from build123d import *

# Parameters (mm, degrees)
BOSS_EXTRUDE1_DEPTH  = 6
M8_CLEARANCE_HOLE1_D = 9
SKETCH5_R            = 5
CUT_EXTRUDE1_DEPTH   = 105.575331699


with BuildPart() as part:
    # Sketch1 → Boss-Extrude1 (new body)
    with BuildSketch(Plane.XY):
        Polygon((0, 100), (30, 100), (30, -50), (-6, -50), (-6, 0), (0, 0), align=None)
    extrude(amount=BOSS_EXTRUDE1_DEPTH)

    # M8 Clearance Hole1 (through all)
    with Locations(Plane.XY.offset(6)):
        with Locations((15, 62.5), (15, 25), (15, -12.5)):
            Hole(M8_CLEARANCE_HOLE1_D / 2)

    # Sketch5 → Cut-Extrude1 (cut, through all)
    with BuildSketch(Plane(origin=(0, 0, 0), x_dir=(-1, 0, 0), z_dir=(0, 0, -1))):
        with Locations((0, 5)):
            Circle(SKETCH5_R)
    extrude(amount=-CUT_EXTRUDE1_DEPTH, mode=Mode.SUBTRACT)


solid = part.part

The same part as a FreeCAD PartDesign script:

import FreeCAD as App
import Part
import Sketcher
from FreeCAD import Vector
Q = App.Units.Quantity

doc = App.newDocument("Part")
body = doc.addObject("PartDesign::Body", "Body")

# Sketch on XY plane
sketch1 = doc.addObject("Sketcher::SketchObject", "Sketch")
body.addObject(sketch1)
sketch1.AttachmentSupport = (doc.XY_Plane, [""])
sketch1.MapMode = "FlatFace"
sketch1.addGeometry([
    Part.LineSegment(Vector(30, 100, 0), Vector(0, 100, 0)),  # 0
    Part.LineSegment(Vector(0, 100, 0), Vector(0, 0, 0)),  # 1
    Part.LineSegment(Vector(0, 0, 0), Vector(-6, 0, 0)),  # 2
    Part.LineSegment(Vector(-6, 0, 0), Vector(-6, -50, 0)),  # 3
    Part.LineSegment(Vector(-6, -50, 0), Vector(30, -50, 0)),  # 4
    Part.LineSegment(Vector(30, -50, 0), Vector(30, 100, 0)),  # 5
], False)
sketch1.addConstraint([
    Sketcher.Constraint("Coincident", 0, 2, 1, 1),
    Sketcher.Constraint("Coincident", 1, 2, 2, 1),
    Sketcher.Constraint("Coincident", 2, 2, 3, 1),
    Sketcher.Constraint("Coincident", 3, 2, 4, 1),
    Sketcher.Constraint("Coincident", 4, 2, 5, 1),
    Sketcher.Constraint("Coincident", 5, 2, 0, 1),
    Sketcher.Constraint("Horizontal", 0),
    Sketcher.Constraint("Vertical", 1),
    Sketcher.Constraint("Horizontal", 2),
    Sketcher.Constraint("Vertical", 3),
    Sketcher.Constraint("Horizontal", 4),
    Sketcher.Constraint("Vertical", 5),
    Sketcher.Constraint("Coincident", 1, 2, -1, 1),
    Sketcher.Constraint("DistanceX", 0, 2, 0, 1, Q("30 mm")),
    Sketcher.Constraint("DistanceX", 2, 2, 2, 1, Q("6 mm")),
    Sketcher.Constraint("DistanceY", 1, 2, 1, 1, Q("100 mm")),
    Sketcher.Constraint("DistanceY", 3, 2, 3, 1, Q("50 mm")),
])
pad1 = doc.addObject("PartDesign::Pad", "Pad")
body.addObject(pad1)
pad1.Profile = sketch1
pad1.Length = 6

# Sketch on XY plane
sketch2 = doc.addObject("Sketcher::SketchObject", "Sketch001")
body.addObject(sketch2)
sketch2.AttachmentSupport = (doc.XY_Plane, [""])
sketch2.MapMode = "FlatFace"
sketch2.AttachmentOffset = App.Placement(Vector(0, 0, 6), App.Rotation())
sketch2.addGeometry([
    Part.Circle(Vector(15, 62.5, 0), Vector(0, 0, 1), 4.5),
    Part.Circle(Vector(15, 25, 0), Vector(0, 0, 1), 4.5),
    Part.Circle(Vector(15, -12.5, 0), Vector(0, 0, 1), 4.5),
], False)
sketch2.addConstraint([
    Sketcher.Constraint("Equal", 0, 1),
    Sketcher.Constraint("Equal", 1, 2),
    Sketcher.Constraint("Vertical", 0, 3, 1, 3),
    Sketcher.Constraint("Vertical", 1, 3, 2, 3),
    Sketcher.Constraint("Diameter", 0, Q("9 mm")),
    Sketcher.Constraint("DistanceX", -1, 1, 0, 3, Q("15 mm")),
    Sketcher.Constraint("DistanceY", -1, 1, 1, 3, Q("25 mm")),
    Sketcher.Constraint("DistanceY", 2, 3, 0, 3, Q("75 mm")),
    Sketcher.Constraint("DistanceY", -1, 1, 0, 3, Q("62.5 mm")),
])
doc.recompute()
hole = doc.addObject("PartDesign::Hole", "Hole")
body.addObject(hole)
hole.Profile = sketch2
hole.ThreadType = "None"
hole.Diameter = 9
hole.DepthType = "ThroughAll"

# Sketch on XY plane
sketch3 = doc.addObject("Sketcher::SketchObject", "Sketch002")
body.addObject(sketch3)
sketch3.AttachmentSupport = (doc.XY_Plane, [""])
sketch3.MapMode = "FlatFace"
sketch3.addGeometry(Part.Circle(Vector(0, 5, 0), Vector(0, 0, 1), 5), False)
sketch3.addConstraint([
    Sketcher.Constraint("PointOnObject", 0, 3, -2),
    Sketcher.Constraint("Diameter", 0, Q("10 mm")),
    Sketcher.Constraint("DistanceY", -1, 1, 0, 3, Q("5 mm")),
])
pocket1 = doc.addObject("PartDesign::Pocket", "Pocket")
body.addObject(pocket1)
pocket1.Profile = sketch3
pocket1.Type = "ThroughAll"
pocket1.Reversed = True

doc.recompute()
